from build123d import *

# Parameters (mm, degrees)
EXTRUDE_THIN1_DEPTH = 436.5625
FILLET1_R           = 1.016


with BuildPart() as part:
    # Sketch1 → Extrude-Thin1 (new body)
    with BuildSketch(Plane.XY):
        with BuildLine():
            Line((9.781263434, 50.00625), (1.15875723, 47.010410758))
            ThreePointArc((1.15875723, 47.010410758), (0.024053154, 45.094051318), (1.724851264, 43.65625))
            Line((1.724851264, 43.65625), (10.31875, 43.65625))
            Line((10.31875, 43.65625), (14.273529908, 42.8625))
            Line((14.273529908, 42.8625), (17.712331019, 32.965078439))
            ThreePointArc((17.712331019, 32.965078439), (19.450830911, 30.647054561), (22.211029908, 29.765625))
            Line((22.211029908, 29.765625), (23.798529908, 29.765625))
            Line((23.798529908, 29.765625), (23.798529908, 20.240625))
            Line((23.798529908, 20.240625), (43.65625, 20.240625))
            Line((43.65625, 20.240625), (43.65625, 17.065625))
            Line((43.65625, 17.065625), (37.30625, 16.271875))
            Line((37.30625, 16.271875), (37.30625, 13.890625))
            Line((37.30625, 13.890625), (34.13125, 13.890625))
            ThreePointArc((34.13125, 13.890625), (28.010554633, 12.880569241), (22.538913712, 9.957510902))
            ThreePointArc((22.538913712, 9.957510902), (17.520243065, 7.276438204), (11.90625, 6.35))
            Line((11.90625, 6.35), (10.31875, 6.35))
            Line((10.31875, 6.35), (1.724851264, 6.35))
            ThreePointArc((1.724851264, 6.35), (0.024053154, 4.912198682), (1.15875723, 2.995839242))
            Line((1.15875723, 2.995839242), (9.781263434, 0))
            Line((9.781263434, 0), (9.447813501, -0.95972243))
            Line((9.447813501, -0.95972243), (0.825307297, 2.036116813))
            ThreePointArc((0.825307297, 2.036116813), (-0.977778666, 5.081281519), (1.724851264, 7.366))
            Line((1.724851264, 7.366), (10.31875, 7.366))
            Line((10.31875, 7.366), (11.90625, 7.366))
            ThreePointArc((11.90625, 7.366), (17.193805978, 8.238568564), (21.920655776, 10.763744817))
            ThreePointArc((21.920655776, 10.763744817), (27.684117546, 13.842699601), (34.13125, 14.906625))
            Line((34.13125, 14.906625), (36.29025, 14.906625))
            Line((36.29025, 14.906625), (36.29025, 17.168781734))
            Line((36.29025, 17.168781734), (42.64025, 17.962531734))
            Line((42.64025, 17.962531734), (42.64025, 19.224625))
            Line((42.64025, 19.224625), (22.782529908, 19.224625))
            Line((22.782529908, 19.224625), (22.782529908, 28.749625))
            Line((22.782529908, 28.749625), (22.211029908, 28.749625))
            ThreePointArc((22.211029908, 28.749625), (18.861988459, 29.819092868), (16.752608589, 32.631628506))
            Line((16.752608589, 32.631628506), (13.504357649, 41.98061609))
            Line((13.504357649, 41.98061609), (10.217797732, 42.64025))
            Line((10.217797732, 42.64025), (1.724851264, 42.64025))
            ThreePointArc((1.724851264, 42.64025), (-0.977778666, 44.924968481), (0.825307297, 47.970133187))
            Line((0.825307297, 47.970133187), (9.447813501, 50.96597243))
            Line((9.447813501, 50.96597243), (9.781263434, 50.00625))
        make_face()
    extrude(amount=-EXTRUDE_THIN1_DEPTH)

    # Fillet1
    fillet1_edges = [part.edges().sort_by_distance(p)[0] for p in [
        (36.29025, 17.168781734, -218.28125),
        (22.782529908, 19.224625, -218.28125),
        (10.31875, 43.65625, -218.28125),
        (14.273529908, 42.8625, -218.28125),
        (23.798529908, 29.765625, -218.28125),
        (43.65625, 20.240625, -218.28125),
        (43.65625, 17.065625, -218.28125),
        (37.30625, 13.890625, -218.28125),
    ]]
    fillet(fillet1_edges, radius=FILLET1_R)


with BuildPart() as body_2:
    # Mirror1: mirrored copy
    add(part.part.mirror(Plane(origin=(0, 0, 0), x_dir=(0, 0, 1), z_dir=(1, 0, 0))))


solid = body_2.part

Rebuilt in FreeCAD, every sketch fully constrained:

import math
import FreeCAD as App
import Part
import Sketcher
Q = App.Units.Quantity


def edges_at(feature, points):
    """Names of the edges that pass closest to the given points."""
    edges = feature.Shape.Edges
    near = lambda p: min(range(len(edges)), key=lambda i: edges[i].distToShape(Part.Vertex(*p))[0])
    return sorted({f"Edge{near(p) + 1}" for p in points})

doc = App.newDocument("Part")
body = doc.addObject("PartDesign::Body", "Body")

# Sketch on XY plane
sketch1 = body.newObject("Sketcher::SketchObject", "Sketch")
sketch1.AttachmentSupport = (doc.getObject("XY_Plane"), [""])
sketch1.MapMode = "FlatFace"
sketch1.addGeometry(Part.LineSegment(App.Vector(1.2, 47, 0), App.Vector(9.8, 50, 0)), False)
sketch1.addGeometry(Part.LineSegment(App.Vector(9.8, 50, 0), App.Vector(9.4, 51, 0)), False)
sketch1.addGeometry(Part.LineSegment(App.Vector(9.4, 51, 0), App.Vector(0.8, 48, 0)), False)
sketch1.addGeometry(Part.ArcOfCircle(Part.Circle(App.Vector(1.7, 45.4, 0), App.Vector(0, 0, 1), 2.7), math.radians(109), math.radians(270)), False)
sketch1.addGeometry(Part.LineSegment(App.Vector(1.7, 42.6, 0), App.Vector(10.2, 42.6, 0)), False)
sketch1.addGeometry(Part.LineSegment(App.Vector(10.2, 42.6, 0), App.Vector(13.5, 42, 0)), False)
sketch1.addGeometry(Part.LineSegment(App.Vector(13.5, 42, 0), App.Vector(16.8, 32.6, 0)), False)
sketch1.addGeometry(Part.ArcOfCircle(Part.Circle(App.Vector(22.2, 34.5, 0), App.Vector(0, 0, 1), 5.8), math.radians(-161), math.radians(-90)), False)
sketch1.addGeometry(Part.LineSegment(App.Vector(22.2, 28.7, 0), App.Vector(22.8, 28.7, 0)), False)
sketch1.addGeometry(Part.LineSegment(App.Vector(22.8, 28.7, 0), App.Vector(22.8, 19.2, 0)), False)
sketch1.addGeometry(Part.LineSegment(App.Vector(22.8, 19.2, 0), App.Vector(42.6, 19.2, 0)), False)
sketch1.addGeometry(Part.LineSegment(App.Vector(42.6, 19.2, 0), App.Vector(42.6, 18, 0)), False)
sketch1.addGeometry(Part.LineSegment(App.Vector(42.6, 18, 0), App.Vector(36.3, 17.2, 0)), False)
sketch1.addGeometry(Part.LineSegment(App.Vector(36.3, 17.2, 0), App.Vector(36.3, 14.9, 0)), False)
sketch1.addGeometry(Part.LineSegment(App.Vector(36.3, 14.9, 0), App.Vector(34.1, 14.9, 0)), False)
sketch1.addGeometry(Part.ArcOfCircle(Part.Circle(App.Vector(34.1, -5.2, 0), App.Vector(0, 0, 1), 20.1), math.radians(90), math.radians(127)), False)
sketch1.addGeometry(Part.ArcOfCircle(Part.Circle(App.Vector(11.9, 23.8, 0), App.Vector(0, 0, 1), 16.5), math.radians(-90), math.radians(-53)), False)
sketch1.addGeometry(Part.LineSegment(App.Vector(11.9, 7.4, 0), App.Vector(1.7, 7.4, 0)), False)
sketch1.addGeometry(Part.ArcOfCircle(Part.Circle(App.Vector(1.7, 4.6, 0), App.Vector(0, 0, 1), 2.7), math.radians(90), math.radians(251)), False)
sketch1.addGeometry(Part.LineSegment(App.Vector(0.8, 2, 0), App.Vector(9.4, -1, 0)), False)
sketch1.addGeometry(Part.LineSegment(App.Vector(9.4, -1, 0), App.Vector(9.8, 0, 0)), False)
sketch1.addGeometry(Part.LineSegment(App.Vector(9.8, 0, 0), App.Vector(1.2, 3, 0)), False)
sketch1.addGeometry(Part.ArcOfCircle(Part.Circle(App.Vector(1.7, 4.6, 0), App.Vector(0, 0, 1), 1.7), math.radians(90), math.radians(251)), False)
sketch1.addGeometry(Part.LineSegment(App.Vector(1.7, 6.3, 0), App.Vector(11.9, 6.3, 0)), False)
sketch1.addGeometry(Part.ArcOfCircle(Part.Circle(App.Vector(11.9, 23.8, 0), App.Vector(0, 0, 1), 17.5), math.radians(-90), math.radians(-53)), False)
sketch1.addGeometry(Part.ArcOfCircle(Part.Circle(App.Vector(34.1, -5.2, 0), App.Vector(0, 0, 1), 19.1), math.radians(90), math.radians(127)), False)
sketch1.addGeometry(Part.LineSegment(App.Vector(34.1, 13.9, 0), App.Vector(37.3, 13.9, 0)), False)
sketch1.addGeometry(Part.LineSegment(App.Vector(37.3, 13.9, 0), App.Vector(37.3, 16.3, 0)), False)
sketch1.addGeometry(Part.LineSegment(App.Vector(37.3, 16.3, 0), App.Vector(43.7, 17.1, 0)), False)
sketch1.addGeometry(Part.LineSegment(App.Vector(43.7, 17.1, 0), App.Vector(43.7, 20.2, 0)), False)
sketch1.addGeometry(Part.LineSegment(App.Vector(43.7, 20.2, 0), App.Vector(23.8, 20.2, 0)), False)
sketch1.addGeometry(Part.LineSegment(App.Vector(23.8, 20.2, 0), App.Vector(23.8, 29.8, 0)), False)
sketch1.addGeometry(Part.LineSegment(App.Vector(23.8, 29.8, 0), App.Vector(22.2, 29.8, 0)), False)
sketch1.addGeometry(Part.ArcOfCircle(Part.Circle(App.Vector(22.2, 34.5, 0), App.Vector(0, 0, 1), 4.8), math.radians(-161), math.radians(-90)), False)
sketch1.addGeometry(Part.LineSegment(App.Vector(17.7, 33, 0), App.Vector(14.3, 42.9, 0)), False)
sketch1.addGeometry(Part.LineSegment(App.Vector(14.3, 42.9, 0), App.Vector(10.3, 43.7, 0)), False)
sketch1.addGeometry(Part.LineSegment(App.Vector(10.3, 43.7, 0), App.Vector(1.7, 43.7, 0)), False)
sketch1.addGeometry(Part.ArcOfCircle(Part.Circle(App.Vector(1.7, 45.4, 0), App.Vector(0, 0, 1), 1.7), math.radians(109), math.radians(270)), False)
sketch1.addConstraint(Sketcher.Constraint("Coincident", 0, 2, 1, 1))
sketch1.addConstraint(Sketcher.Constraint("Coincident", 1, 2, 2, 1))
sketch1.addConstraint(Sketcher.Constraint("Tangent", 2, 2, 3, 1))
sketch1.addConstraint(Sketcher.Constraint("Tangent", 3, 2, 4, 1))
sketch1.addConstraint(Sketcher.Constraint("Coincident", 4, 2, 5, 1))
sketch1.addConstraint(Sketcher.Constraint("Coincident", 5, 2, 6, 1))
sketch1.addConstraint(Sketcher.Constraint("Tangent", 6, 2, 7, 1))
sketch1.addConstraint(Sketcher.Constraint("Tangent", 7, 2, 8, 1))
sketch1.addConstraint(Sketcher.Constraint("Coincident", 8, 2, 9, 1))
sketch1.addConstraint(Sketcher.Constraint("Coincident", 9, 2, 10, 1))
sketch1.addConstraint(Sketcher.Constraint("Coincident", 10, 2, 11, 1))
sketch1.addConstraint(Sketcher.Constraint("Coincident", 11, 2, 12, 1))
sketch1.addConstraint(Sketcher.Constraint("Coincident", 12, 2, 13, 1))
sketch1.addConstraint(Sketcher.Constraint("Coincident", 13, 2, 14, 1))
sketch1.addConstraint(Sketcher.Constraint("Tangent", 14, 2, 15, 1))
sketch1.addConstraint(Sketcher.Constraint("Tangent", 15, 2, 16, 2))
sketch1.addConstraint(Sketcher.Constraint("Tangent", 16, 1, 17, 1))
sketch1.addConstraint(Sketcher.Constraint("Tangent", 17, 2, 18, 1))
sketch1.addConstraint(Sketcher.Constraint("Tangent", 18, 2, 19, 1))
sketch1.addConstraint(Sketcher.Constraint("Coincident", 19, 2, 20, 1))
sketch1.addConstraint(Sketcher.Constraint("Coincident", 20, 2, 21, 1))
sketch1.addConstraint(Sketcher.Constraint("Tangent", 21, 2, 22, 2))
sketch1.addConstraint(Sketcher.Constraint("Tangent", 22, 1, 23, 1))
sketch1.addConstraint(Sketcher.Constraint("Tangent", 23, 2, 24, 1))
sketch1.addConstraint(Sketcher.Constraint("Tangent", 24, 2, 25, 2))
sketch1.addConstraint(Sketcher.Constraint("Tangent", 25, 1, 26, 1))
sketch1.addConstraint(Sketcher.Constraint("Coincident", 26, 2, 27, 1))
sketch1.addConstraint(Sketcher.Constraint("Coincident", 27, 2, 28, 1))
sketch1.addConstraint(Sketcher.Constraint("Coincident", 28, 2, 29, 1))
sketch1.addConstraint(Sketcher.Constraint("Coincident", 29, 2, 30, 1))
sketch1.addConstraint(Sketcher.Constraint("Coincident", 30, 2, 31, 1))
sketch1.addConstraint(Sketcher.Constraint("Coincident", 31, 2, 32, 1))
sketch1.addConstraint(Sketcher.Constraint("Tangent", 32, 2, 33, 2))
sketch1.addConstraint(Sketcher.Constraint("Tangent", 33, 1, 34, 1))
sketch1.addConstraint(Sketcher.Constraint("Coincident", 34, 2, 35, 1))
sketch1.addConstraint(Sketcher.Constraint("Coincident", 35, 2, 36, 1))
sketch1.addConstraint(Sketcher.Constraint("Tangent", 36, 2, 37, 2))
sketch1.addConstraint(Sketcher.Constraint("Tangent", 37, 1, 0, 1))
sketch1.addConstraint(Sketcher.Constraint("Horizontal", 4))
sketch1.addConstraint(Sketcher.Constraint("Horizontal", 8))
sketch1.addConstraint(Sketcher.Constraint("Vertical", 9))
sketch1.addConstraint(Sketcher.Constraint("Horizontal", 10))
sketch1.addConstraint(Sketcher.Constraint("Vertical", 11))
sketch1.addConstraint(Sketcher.Constraint("Vertical", 13))
sketch1.addConstraint(Sketcher.Constraint("Horizontal", 14))
sketch1.addConstraint(Sketcher.Constraint("Horizontal", 17))
sketch1.addConstraint(Sketcher.Constraint("Horizontal", 23))
sketch1.addConstraint(Sketcher.Constraint("Horizontal", 26))
sketch1.addConstraint(Sketcher.Constraint("Vertical", 27))
sketch1.addConstraint(Sketcher.Constraint("Vertical", 29))
sketch1.addConstraint(Sketcher.Constraint("Horizontal", 30))
sketch1.addConstraint(Sketcher.Constraint("Vertical", 31))
sketch1.addConstraint(Sketcher.Constraint("Horizontal", 32))
sketch1.addConstraint(Sketcher.Constraint("Horizontal", 36))
sketch1.addConstraint(Sketcher.Constraint("Coincident", 22, 3, 18, 3))
sketch1.addConstraint(Sketcher.Constraint("Coincident", 24, 3, 16, 3))
sketch1.addConstraint(Sketcher.Constraint("Coincident", 25, 3, 15, 3))
sketch1.addConstraint(Sketcher.Constraint("Coincident", 33, 3, 7, 3))
sketch1.addConstraint(Sketcher.Constraint("Coincident", 37, 3, 3, 3))
sketch1.addConstraint(Sketcher.Constraint("Equal", 3, 18))
sketch1.addConstraint(Sketcher.Constraint("Equal", 22, 37))
sketch1.addConstraint(Sketcher.Constraint("PointOnObject", 20, 2, -1))
sketch1.addConstraint(Sketcher.Constraint("Perpendicular", 0, 1))
sketch1.addConstraint(Sketcher.Constraint("Perpendicular", 1, 2))
sketch1.addConstraint(Sketcher.Constraint("Perpendicular", 2, 6))
sketch1.addConstraint(Sketcher.Constraint("Perpendicular", 19, 20))
sketch1.addConstraint(Sketcher.Constraint("Perpendicular", 20, 21))
sketch1.addConstraint(Sketcher.Constraint("Parallel", 12, 28))
sketch1.addConstraint(Sketcher.Constraint("Parallel", 6, 34))
sketch1.addConstraint(Sketcher.Constraint("Parallel", 5, 35))
sketch1.addConstraint(Sketcher.Constraint("Vertical", 3, 3, 18, 3))
sketch1.addConstraint(Sketcher.Constraint("Vertical", 2, 2, 18, 2))
sketch1.addConstraint(Sketcher.Constraint("Vertical", 1, 2, 19, 2))
sketch1.addConstraint(Sketcher.Constraint("Equal", 10, 30))
sketch1.addConstraint(Sketcher.Constraint("Equal", 26, 29))
sketch1.addConstraint(Sketcher.Constraint("Equal", 9, 31))
sketch1.addConstraint(Sketcher.Constraint("Equal", 12, 28))
sketch1.addConstraint(Sketcher.Constraint("Radius", 15, Q("0.79 in")))
sketch1.addConstraint(Sketcher.Constraint("Radius", 25, Q("0.75 in")))
sketch1.addConstraint(Sketcher.Constraint("Radius", 33, Q("0.1875 in")))
sketch1.addConstraint(Sketcher.Constraint("Radius", 7, Q("0.2275 in")))
sketch1.addConstraint(Sketcher.Constraint("DistanceX", 14, 2, 14, 1, Q("0.085 in")))
sketch1.addConstraint(Sketcher.Constraint("DistanceX", 26, 1, 26, 2, Q("0.125 in")))
sketch1.addConstraint(Sketcher.Constraint("DistanceX", 32, 2, 32, 1, Q("0.0625 in")))
sketch1.addConstraint(Sketcher.Constraint("DistanceY", 9, 2, 9, 1, Q("0.375 in")))
sketch1.addConstraint(Sketcher.Constraint("DistanceY", 27, 1, 27, 2, Q("0.09375 in")))
sketch1.addConstraint(Sketcher.Constraint("DistanceY", -1, 1, 16, 1, Q("0.29 in")))
sketch1.addConstraint(Sketcher.Constraint("DistanceX", 12, 2, 11, 2, Q("0.25 in")))
sketch1.addConstraint(Sketcher.Constraint("DistanceY", 13, 2, 10, 2, Q("0.17 in")))
sketch1.addConstraint(Sketcher.Constraint("Distance", 0, Q("0.359375 in")))
sketch1.addConstraint(Sketcher.Constraint("DistanceX", 10, 1, 10, 2, Q("0.7818 in")))
sketch1.addConstraint(Sketcher.Constraint("DistanceY", -1, 1, 7, 3, Q("1.359375 in")))
sketch1.addConstraint(Sketcher.Constraint("DistanceX", -1, 1, 15, 3, Q("1.34375 in")))
sketch1.addConstraint(Sketcher.Constraint("DistanceX", -1, 1, 16, 3, Q("0.46875 in")))
sketch1.addConstraint(Sketcher.Constraint("DistanceY", -1, 1, 0, 2, Q("1.96875 in")))
sketch1.addConstraint(Sketcher.Constraint("DistanceY", -1, 1, 34, 2, Q("1.6875 in")))
sketch1.addConstraint(Sketcher.Constraint("DistanceX", -1, 1, 35, 2, Q("0.40625 in")))
sketch1.addConstraint(Sketcher.Constraint("Radius", 3, Q("2.740851 mm")))
sketch1.addConstraint(Sketcher.Constraint("DistanceX", 17, 2, 17, 1, Q("10.181399 mm")))
sketch1.addConstraint(Sketcher.Constraint("DistanceX", 4, 1, 4, 2, Q("8.492946 mm")))
sketch1.addConstraint(Sketcher.Constraint("DistanceY", 11, 2, 11, 1, Q("1.262093 mm")))
pad1 = body.newObject("PartDesign::Pad", "Pad")
pad1.Profile = sketch1
pad1.Length = Q("17.1875 in")
pad1.Reversed = True
doc.recompute()

fillet = body.newObject("PartDesign::Fillet", "Fillet")
fillet.Base = (pad1, edges_at(pad1, [
    (36.29, 17.169, -218.281),
    (22.783, 19.225, -218.281),
    (10.319, 43.656, -218.281),
    (14.274, 42.862, -218.281),
    (23.799, 29.766, -218.281),
    (43.656, 20.241, -218.281),
    (43.656, 17.066, -218.281),
    (37.306, 13.891, -218.281),
]))
fillet.Radius = Q("0.04 in")
body2 = doc.addObject("PartDesign::Body", "Body001")
doc.recompute()

mirroring = doc.addObject("Part::Mirroring", "Mirroring")
mirroring.Source = body
mirroring.Base = App.Vector(0, 0, 0)
mirroring.Normal = App.Vector(1, 0, 0)
body2.BaseFeature = mirroring
doc.recompute()
body.Visibility = False
mirroring.Visibility = False

doc.recompute()
